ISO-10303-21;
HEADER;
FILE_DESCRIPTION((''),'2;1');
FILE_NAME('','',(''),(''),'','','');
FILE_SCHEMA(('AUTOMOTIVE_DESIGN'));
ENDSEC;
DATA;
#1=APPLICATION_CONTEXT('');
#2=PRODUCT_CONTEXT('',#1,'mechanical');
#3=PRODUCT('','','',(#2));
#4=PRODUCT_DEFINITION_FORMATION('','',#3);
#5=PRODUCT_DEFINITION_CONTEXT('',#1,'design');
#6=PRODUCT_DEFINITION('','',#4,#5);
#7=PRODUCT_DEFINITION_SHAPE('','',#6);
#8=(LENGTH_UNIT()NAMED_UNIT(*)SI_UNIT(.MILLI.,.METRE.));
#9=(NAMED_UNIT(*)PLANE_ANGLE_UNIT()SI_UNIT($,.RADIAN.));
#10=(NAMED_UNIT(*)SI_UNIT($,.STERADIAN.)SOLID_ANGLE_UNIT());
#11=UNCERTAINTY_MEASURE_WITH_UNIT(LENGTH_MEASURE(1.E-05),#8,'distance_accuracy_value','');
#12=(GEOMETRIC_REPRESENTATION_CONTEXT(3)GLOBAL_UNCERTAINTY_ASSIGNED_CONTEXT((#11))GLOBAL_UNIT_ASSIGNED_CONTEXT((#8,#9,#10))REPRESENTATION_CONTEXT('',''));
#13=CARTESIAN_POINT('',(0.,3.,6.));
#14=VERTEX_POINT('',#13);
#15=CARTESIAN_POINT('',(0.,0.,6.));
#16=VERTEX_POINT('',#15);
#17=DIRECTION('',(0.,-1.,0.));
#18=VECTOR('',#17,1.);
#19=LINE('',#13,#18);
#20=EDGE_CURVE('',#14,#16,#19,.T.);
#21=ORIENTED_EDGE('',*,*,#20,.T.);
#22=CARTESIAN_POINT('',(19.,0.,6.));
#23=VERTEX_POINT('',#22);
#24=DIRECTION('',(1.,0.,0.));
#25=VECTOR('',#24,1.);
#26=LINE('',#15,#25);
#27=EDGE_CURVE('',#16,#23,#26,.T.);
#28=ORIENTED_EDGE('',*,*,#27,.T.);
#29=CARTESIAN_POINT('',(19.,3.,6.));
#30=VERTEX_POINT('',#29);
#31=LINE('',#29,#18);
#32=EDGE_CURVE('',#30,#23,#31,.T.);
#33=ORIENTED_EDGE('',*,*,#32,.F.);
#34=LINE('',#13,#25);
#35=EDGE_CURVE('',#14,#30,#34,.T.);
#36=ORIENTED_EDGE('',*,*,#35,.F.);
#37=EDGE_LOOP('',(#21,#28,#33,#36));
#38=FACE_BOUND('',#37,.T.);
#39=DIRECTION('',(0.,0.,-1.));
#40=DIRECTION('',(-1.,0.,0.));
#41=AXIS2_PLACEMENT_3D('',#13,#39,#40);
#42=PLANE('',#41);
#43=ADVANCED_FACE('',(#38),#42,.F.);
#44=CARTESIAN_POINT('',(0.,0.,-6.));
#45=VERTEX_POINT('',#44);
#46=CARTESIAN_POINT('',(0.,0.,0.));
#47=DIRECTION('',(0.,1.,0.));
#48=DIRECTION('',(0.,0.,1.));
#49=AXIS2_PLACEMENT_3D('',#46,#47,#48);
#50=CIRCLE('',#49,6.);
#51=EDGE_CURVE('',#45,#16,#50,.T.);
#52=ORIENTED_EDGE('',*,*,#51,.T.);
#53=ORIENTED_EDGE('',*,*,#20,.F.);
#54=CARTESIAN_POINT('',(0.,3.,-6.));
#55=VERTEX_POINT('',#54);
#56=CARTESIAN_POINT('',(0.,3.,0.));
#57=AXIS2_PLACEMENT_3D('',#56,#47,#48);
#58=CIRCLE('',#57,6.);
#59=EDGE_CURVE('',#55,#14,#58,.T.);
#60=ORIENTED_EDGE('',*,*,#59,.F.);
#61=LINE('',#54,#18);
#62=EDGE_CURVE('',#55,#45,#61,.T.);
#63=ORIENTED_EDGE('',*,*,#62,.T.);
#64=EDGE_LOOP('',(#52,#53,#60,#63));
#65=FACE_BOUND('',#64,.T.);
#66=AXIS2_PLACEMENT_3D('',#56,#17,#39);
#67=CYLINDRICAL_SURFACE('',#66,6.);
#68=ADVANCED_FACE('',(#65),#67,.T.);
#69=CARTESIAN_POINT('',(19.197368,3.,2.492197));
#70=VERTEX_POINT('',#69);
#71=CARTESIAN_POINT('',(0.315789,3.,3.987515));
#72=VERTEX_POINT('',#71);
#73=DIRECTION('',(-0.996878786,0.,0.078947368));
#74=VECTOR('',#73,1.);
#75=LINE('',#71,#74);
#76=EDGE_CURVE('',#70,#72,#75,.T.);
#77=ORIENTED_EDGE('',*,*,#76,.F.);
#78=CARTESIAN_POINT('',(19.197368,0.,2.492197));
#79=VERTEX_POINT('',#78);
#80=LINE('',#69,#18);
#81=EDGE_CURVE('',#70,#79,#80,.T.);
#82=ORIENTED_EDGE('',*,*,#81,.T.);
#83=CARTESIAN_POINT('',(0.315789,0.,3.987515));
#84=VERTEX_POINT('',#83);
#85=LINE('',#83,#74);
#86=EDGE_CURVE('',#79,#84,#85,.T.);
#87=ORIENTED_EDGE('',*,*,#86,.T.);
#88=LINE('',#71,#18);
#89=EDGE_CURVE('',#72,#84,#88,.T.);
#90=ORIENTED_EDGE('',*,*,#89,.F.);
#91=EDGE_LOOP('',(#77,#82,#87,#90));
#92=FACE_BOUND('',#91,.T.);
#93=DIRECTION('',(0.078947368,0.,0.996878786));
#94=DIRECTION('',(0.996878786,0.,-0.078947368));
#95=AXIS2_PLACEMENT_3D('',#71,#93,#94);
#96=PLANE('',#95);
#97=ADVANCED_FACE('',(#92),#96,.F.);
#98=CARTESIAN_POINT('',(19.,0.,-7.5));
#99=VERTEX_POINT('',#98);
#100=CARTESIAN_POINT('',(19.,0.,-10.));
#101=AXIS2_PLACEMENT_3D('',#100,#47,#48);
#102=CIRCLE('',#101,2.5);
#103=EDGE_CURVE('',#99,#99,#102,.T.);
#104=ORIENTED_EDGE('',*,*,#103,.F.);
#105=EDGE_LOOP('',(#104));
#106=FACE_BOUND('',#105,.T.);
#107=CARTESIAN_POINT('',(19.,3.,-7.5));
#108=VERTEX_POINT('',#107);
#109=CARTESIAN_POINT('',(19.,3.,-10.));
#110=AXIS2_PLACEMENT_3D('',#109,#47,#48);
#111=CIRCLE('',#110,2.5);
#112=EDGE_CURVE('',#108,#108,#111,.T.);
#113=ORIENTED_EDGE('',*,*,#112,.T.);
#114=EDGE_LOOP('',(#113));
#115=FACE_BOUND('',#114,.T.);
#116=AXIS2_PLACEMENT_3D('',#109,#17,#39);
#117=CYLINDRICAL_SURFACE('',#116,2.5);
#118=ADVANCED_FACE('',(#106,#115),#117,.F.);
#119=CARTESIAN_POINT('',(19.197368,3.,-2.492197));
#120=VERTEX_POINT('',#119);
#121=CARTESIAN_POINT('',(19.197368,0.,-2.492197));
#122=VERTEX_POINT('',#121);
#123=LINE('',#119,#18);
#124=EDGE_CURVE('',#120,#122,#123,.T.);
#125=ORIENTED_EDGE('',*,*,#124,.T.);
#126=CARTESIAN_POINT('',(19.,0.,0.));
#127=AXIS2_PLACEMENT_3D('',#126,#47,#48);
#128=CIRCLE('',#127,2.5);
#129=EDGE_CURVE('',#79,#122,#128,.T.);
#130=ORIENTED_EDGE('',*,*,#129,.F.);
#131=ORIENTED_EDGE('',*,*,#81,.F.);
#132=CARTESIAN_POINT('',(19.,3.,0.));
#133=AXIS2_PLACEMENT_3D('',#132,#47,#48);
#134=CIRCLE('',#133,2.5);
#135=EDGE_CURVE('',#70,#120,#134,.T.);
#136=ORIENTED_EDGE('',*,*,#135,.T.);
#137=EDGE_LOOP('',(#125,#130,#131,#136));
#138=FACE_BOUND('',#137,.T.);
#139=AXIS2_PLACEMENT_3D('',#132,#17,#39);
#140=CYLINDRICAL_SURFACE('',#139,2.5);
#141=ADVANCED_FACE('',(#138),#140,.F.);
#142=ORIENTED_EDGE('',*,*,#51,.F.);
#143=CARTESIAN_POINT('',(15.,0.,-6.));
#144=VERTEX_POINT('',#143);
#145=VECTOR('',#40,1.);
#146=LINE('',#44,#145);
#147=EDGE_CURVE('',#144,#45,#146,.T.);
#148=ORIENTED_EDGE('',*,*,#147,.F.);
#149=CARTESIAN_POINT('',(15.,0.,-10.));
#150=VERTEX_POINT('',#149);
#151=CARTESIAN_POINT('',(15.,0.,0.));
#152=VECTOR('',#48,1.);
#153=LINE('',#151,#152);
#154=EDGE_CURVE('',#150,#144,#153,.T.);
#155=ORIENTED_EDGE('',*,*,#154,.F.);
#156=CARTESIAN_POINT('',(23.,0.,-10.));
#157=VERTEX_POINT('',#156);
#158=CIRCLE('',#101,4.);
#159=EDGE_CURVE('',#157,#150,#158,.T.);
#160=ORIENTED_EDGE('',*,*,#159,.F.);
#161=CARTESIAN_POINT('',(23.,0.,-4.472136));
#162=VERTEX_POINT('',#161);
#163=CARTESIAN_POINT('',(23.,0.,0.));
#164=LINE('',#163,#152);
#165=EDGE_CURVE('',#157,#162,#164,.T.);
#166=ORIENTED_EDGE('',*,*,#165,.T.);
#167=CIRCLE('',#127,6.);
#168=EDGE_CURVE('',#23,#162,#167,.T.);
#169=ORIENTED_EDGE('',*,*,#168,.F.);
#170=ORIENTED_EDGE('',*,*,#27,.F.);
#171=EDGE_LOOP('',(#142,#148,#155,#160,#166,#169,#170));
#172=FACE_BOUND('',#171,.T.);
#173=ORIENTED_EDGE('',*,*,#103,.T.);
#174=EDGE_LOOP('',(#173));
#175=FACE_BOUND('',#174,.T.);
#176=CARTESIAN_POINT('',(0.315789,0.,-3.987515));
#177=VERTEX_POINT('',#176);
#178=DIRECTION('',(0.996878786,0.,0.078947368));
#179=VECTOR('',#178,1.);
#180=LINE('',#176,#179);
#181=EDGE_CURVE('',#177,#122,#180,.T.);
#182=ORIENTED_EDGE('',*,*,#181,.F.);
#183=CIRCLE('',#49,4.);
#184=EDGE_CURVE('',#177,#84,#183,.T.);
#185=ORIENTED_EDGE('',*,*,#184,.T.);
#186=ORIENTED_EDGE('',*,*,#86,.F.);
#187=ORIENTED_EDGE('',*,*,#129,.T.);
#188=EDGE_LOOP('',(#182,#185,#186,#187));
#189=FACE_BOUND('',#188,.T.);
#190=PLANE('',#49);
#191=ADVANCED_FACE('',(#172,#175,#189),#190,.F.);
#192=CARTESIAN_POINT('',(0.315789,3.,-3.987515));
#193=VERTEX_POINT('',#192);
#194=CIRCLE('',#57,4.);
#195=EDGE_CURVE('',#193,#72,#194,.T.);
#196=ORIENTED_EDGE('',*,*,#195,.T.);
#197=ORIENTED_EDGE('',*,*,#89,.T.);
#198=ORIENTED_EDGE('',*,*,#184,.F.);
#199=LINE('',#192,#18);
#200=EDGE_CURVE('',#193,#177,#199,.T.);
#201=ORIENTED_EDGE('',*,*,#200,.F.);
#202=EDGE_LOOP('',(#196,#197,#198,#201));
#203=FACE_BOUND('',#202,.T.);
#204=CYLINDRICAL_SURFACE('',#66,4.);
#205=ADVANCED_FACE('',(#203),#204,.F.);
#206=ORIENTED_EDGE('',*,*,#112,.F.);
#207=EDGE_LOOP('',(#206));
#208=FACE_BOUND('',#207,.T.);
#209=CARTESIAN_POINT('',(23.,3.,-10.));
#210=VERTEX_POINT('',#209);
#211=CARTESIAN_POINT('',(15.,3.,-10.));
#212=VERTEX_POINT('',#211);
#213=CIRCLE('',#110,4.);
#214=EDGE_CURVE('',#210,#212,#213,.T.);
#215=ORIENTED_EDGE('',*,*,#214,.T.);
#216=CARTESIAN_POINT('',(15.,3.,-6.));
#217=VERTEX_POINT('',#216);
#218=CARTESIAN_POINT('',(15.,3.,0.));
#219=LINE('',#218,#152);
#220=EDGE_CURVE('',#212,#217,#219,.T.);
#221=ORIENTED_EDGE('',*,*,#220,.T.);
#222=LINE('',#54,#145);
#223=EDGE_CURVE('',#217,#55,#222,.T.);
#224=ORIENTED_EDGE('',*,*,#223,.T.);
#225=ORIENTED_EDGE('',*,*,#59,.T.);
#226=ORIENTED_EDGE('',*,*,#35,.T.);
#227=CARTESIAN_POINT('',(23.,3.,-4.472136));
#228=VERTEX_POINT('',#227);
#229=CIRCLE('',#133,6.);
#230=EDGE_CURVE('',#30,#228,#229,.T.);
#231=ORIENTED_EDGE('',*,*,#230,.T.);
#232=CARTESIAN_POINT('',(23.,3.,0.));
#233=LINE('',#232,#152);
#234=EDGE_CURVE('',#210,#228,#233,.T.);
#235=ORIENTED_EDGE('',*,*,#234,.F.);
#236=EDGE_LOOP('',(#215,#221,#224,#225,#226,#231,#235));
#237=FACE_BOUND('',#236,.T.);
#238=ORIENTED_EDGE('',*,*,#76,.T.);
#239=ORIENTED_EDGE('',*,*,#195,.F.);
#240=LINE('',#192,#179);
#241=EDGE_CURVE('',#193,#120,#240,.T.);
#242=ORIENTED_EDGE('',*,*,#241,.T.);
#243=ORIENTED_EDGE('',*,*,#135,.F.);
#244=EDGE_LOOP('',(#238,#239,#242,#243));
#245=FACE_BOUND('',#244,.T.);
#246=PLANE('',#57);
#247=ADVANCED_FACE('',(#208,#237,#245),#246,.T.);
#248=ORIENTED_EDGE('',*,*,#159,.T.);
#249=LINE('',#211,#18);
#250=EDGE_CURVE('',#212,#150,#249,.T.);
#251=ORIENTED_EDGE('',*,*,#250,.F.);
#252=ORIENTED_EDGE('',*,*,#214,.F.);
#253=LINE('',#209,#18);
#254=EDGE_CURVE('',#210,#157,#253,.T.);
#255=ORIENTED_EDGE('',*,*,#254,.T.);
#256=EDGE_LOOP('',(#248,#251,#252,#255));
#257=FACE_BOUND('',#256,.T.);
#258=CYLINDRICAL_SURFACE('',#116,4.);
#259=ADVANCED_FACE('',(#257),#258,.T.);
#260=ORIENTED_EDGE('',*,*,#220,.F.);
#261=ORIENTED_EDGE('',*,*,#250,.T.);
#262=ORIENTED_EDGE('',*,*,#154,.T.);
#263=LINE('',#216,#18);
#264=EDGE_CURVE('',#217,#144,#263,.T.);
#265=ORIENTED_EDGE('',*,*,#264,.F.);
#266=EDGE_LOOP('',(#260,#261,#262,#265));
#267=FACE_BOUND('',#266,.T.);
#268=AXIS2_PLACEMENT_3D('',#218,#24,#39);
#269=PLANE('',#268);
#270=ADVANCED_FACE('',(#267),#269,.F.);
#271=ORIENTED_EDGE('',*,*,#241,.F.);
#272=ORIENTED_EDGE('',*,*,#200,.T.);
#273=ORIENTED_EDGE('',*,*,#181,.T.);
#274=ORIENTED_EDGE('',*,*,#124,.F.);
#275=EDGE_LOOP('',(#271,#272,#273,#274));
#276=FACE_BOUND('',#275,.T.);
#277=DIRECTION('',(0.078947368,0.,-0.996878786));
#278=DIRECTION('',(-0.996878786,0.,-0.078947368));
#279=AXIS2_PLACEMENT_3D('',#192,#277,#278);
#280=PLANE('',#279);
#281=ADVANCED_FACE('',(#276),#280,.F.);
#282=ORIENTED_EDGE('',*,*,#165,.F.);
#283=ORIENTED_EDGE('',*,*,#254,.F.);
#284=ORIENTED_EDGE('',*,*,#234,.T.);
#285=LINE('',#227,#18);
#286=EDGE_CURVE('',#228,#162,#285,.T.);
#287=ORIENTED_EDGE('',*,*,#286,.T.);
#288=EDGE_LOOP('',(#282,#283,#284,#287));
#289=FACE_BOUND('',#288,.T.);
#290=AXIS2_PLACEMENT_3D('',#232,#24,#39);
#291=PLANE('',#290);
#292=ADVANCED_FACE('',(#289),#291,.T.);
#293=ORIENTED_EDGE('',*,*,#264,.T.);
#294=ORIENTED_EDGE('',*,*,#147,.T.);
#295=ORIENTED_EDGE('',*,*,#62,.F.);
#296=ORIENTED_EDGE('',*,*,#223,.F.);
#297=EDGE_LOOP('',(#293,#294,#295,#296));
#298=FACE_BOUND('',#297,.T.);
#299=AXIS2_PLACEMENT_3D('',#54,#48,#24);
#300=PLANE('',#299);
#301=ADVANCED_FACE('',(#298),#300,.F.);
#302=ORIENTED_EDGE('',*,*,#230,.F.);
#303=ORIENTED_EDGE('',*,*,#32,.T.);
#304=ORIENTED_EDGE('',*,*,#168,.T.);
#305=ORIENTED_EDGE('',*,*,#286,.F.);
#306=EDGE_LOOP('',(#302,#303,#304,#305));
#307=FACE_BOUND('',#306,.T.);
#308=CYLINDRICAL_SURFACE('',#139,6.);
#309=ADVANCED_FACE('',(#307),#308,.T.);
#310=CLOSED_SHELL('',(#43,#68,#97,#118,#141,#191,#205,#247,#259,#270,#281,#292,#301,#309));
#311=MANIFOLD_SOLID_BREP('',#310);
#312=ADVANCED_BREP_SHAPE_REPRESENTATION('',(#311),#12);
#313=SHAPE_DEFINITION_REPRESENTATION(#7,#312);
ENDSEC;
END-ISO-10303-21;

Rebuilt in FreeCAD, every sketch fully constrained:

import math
import FreeCAD as App
import Part
import Sketcher

V = App.Vector

doc = App.newDocument("Part")
body = doc.addObject("PartDesign::Body", "Body")

sketch1 = body.newObject("Sketcher::SketchObject", "Sketch")
sketch1.AttachmentSupport = (doc.getObject("XZ_Plane"), [""])
sketch1.MapMode = "FlatFace"
sketch1.addGeometry([
    Part.ArcOfCircle(Part.Circle(V(19, 0, 0), V(0, 0, 1), 6), math.radians(-48.189685), math.radians(90)),
    Part.LineSegment(V(23, -4.472136, 0), V(23, -10, 0)),
    Part.ArcOfCircle(Part.Circle(V(19, -10, 0), V(0, 0, 1), 4), math.radians(180), math.radians(360)),
    Part.LineSegment(V(15, -10, 0), V(15, -6, 0)),
    Part.LineSegment(V(15, -6, 0), V(0, -6, 0)),
    Part.ArcOfCircle(Part.Circle(V(0, 0, 0), V(0, 0, 1), 6), math.radians(90), math.radians(270)),
    Part.LineSegment(V(0, 6, 0), V(19, 6, 0)),
    Part.LineSegment(V(19.197368, 2.492197, 0), V(0.315789, 3.987515, 0)),
    Part.ArcOfCircle(Part.Circle(V(0, 0, 0), V(0, 0, 1), 4), math.radians(85.471937), math.radians(274.528063)),
    Part.LineSegment(V(0.315789, -3.987515, 0), V(19.197368, -2.492197, 0)),
    Part.ArcOfCircle(Part.Circle(V(19, 0, 0), V(0, 0, 1), 2.5), math.radians(-85.471937), math.radians(85.471937)),
    Part.Circle(V(19, -10, 0), V(0, 0, 1), 2.5),
], False)
sketch1.addConstraint([
    Sketcher.Constraint("Coincident", 0, 1, 1, 1),
    Sketcher.Constraint("Tangent", 1, 2, 2, 2),
    Sketcher.Constraint("Tangent", 2, 1, 3, 1),
    Sketcher.Constraint("Coincident", 3, 2, 4, 1),
    Sketcher.Constraint("Tangent", 4, 2, 5, 2),
    Sketcher.Constraint("Tangent", 5, 1, 6, 1),
    Sketcher.Constraint("Tangent", 6, 2, 0, 2),
    Sketcher.Constraint("Tangent", 7, 2, 8, 1),
    Sketcher.Constraint("Tangent", 8, 2, 9, 1),
    Sketcher.Constraint("Tangent", 9, 2, 10, 1),
    Sketcher.Constraint("Tangent", 10, 2, 7, 1),
    Sketcher.Constraint("Vertical", 1),
    Sketcher.Constraint("Vertical", 3),
    Sketcher.Constraint("Horizontal", 4),
    Sketcher.Constraint("Horizontal", 6),
    Sketcher.Constraint("Coincident", 5, 3, -1, 1),
    Sketcher.Constraint("Coincident", 8, 3, -1, 1),
    Sketcher.Constraint("Coincident", 10, 3, 0, 3),
    Sketcher.Constraint("Coincident", 11, 3, 2, 3),
    Sketcher.Constraint("Equal", 0, 5),
    Sketcher.Constraint("Equal", 2, 8),
    Sketcher.Constraint("Equal", 10, 11),
    Sketcher.Constraint("Vertical", 0, 3, 2, 3),
    Sketcher.Constraint("Diameter", 11, 5.0),
    Sketcher.Constraint("Radius", 0, 6.0),
    Sketcher.Constraint("Radius", 2, 4.0),
    Sketcher.Constraint("DistanceX", 4, 2, 4, 1, 15.0),
    Sketcher.Constraint("DistanceY", 3, 1, 3, 2, 4.0),
])
pad1 = body.newObject("PartDesign::Pad", "Pad")
pad1.Profile = sketch1
pad1.Length = 3
pad1.Reversed = True

doc.recompute()
